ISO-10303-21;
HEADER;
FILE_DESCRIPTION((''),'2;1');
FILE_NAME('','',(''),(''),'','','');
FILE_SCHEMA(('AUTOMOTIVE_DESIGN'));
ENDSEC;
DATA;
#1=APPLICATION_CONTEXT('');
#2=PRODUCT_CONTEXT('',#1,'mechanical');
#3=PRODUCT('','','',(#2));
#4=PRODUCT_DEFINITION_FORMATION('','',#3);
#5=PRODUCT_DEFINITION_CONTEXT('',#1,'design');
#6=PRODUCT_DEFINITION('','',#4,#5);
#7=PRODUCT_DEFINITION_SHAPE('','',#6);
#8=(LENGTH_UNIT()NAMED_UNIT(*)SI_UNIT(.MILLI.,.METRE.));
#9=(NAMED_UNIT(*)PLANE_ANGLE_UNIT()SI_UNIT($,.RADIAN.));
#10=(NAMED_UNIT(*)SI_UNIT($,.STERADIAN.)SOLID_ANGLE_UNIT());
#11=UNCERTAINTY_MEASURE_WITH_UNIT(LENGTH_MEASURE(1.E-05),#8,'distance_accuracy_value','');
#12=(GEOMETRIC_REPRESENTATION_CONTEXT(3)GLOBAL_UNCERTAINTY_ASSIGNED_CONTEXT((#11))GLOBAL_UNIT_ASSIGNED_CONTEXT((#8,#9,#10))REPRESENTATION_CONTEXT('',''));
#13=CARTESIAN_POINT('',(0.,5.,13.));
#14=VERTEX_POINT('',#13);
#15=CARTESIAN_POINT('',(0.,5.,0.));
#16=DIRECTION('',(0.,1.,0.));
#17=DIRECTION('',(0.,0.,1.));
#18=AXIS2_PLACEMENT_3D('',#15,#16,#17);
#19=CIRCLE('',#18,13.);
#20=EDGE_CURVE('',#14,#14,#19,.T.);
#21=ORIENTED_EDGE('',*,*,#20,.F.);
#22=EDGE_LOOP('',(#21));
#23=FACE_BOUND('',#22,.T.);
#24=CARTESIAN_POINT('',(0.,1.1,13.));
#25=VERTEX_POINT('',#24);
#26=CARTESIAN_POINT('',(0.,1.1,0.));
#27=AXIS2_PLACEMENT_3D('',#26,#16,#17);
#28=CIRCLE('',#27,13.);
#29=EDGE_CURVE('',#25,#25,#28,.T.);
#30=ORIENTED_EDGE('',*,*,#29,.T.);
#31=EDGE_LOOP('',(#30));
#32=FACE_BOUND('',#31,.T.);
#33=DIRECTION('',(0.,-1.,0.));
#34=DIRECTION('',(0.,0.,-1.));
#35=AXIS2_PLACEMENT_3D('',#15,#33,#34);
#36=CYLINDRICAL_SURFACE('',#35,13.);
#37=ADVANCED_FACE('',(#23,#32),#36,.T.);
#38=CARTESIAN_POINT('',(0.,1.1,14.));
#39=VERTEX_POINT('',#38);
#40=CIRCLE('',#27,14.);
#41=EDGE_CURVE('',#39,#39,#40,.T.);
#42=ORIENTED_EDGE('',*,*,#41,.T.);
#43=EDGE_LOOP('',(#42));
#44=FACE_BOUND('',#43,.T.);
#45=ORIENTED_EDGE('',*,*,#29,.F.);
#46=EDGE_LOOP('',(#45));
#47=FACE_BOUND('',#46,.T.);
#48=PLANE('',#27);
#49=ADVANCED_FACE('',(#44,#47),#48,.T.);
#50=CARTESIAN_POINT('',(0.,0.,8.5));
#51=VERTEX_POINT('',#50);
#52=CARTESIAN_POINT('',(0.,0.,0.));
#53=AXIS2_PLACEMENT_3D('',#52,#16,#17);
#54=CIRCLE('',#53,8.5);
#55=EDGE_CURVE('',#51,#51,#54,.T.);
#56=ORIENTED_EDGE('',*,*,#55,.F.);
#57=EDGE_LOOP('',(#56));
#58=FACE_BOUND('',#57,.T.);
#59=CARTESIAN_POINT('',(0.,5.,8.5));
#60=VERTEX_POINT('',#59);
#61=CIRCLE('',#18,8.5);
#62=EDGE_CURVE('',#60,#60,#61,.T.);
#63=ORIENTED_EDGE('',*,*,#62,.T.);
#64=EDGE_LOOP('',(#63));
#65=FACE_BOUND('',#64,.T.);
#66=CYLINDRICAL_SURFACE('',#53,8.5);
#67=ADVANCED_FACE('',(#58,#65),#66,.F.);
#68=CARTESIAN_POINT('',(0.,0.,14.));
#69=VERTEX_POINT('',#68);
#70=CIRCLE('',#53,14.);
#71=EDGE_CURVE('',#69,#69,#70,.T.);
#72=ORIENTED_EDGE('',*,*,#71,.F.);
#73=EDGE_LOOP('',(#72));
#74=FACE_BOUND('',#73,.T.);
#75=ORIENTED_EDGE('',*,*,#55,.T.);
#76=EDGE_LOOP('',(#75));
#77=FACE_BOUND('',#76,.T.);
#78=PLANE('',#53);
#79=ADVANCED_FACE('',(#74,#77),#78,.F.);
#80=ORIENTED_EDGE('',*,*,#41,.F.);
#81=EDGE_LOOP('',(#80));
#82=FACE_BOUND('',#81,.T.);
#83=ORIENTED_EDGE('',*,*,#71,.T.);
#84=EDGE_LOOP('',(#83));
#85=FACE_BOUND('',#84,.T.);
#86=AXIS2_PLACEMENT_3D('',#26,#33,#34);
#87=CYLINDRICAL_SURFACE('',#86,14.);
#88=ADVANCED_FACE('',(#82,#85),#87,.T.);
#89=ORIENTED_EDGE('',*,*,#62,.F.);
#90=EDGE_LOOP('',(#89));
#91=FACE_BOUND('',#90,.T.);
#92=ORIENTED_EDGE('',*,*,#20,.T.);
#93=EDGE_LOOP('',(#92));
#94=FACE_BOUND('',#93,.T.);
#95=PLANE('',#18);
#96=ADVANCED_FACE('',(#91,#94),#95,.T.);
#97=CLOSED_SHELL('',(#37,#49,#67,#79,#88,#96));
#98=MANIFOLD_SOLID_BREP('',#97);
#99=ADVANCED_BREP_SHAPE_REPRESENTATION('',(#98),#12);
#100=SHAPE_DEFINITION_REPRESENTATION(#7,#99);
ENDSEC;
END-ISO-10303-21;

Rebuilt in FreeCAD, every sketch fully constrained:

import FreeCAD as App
import Part
import Sketcher
Q = App.Units.Quantity

doc = App.newDocument("Part")
params = doc.addObject("Spreadsheet::Sheet", "Params")
for row, (alias, value) in enumerate([
    ("sketch1_diameter", "28 mm"),
    ("pad1_length", "1.1 mm"),
    ("sketch2_diameter", "26 mm"),
    ("pad2_length", "3.9 mm"),
    ("sketch3_diameter", "17 mm"),
], start=1):
    params.set(f"A{row}", alias)
    params.set(f"B{row}", "=" + value)
    params.setAlias(f"B{row}", alias)

body = doc.addObject("PartDesign::Body", "Body")

# Sketch on XZ plane
sketch1 = body.newObject("Sketcher::SketchObject", "Sketch")
sketch1.AttachmentSupport = (doc.getObject("XZ_Plane"), [""])
sketch1.MapMode = "FlatFace"
sketch1.addGeometry(Part.Circle(App.Vector(0, 0, 0), App.Vector(0, 0, 1), 14), False)
sketch1.addConstraint([
    Sketcher.Constraint("Coincident", 0, 3, -1, 1),
    Sketcher.Constraint("Diameter", 0, Q("28 mm")),
])
sketch1.setExpression("Constraints[1]", "Params.sketch1_diameter")
pad1 = body.newObject("PartDesign::Pad", "Pad")
pad1.Profile = sketch1
pad1.setExpression("Length", "Params.pad1_length")
pad1.Reversed = True

# Sketch on XZ plane
sketch2 = body.newObject("Sketcher::SketchObject", "Sketch001")
sketch2.AttachmentSupport = (doc.getObject("XZ_Plane"), [""])
sketch2.MapMode = "FlatFace"
sketch2.AttachmentOffset = App.Placement(App.Vector(0, 0, -1.1), App.Rotation())
sketch2.addGeometry(Part.Circle(App.Vector(0, 0, 0), App.Vector(0, 0, 1), 13), False)
sketch2.addConstraint([
    Sketcher.Constraint("Coincident", 0, 3, -1, 1),
    Sketcher.Constraint("Diameter", 0, Q("26 mm")),
])
sketch2.setExpression("Constraints[1]", "Params.sketch2_diameter")
pad2 = body.newObject("PartDesign::Pad", "Pad001")
pad2.Profile = sketch2
pad2.setExpression("Length", "Params.pad2_length")
pad2.Reversed = True

# Sketch on XZ plane
sketch3 = body.newObject("Sketcher::SketchObject", "Sketch002")
sketch3.AttachmentSupport = (doc.getObject("XZ_Plane"), [""])
sketch3.MapMode = "FlatFace"
sketch3.AttachmentOffset = App.Placement(App.Vector(0, 0, -5), App.Rotation())
sketch3.addGeometry(Part.Circle(App.Vector(0, 0, 0), App.Vector(0, 0, 1), 8.5), False)
sketch3.addConstraint([
    Sketcher.Constraint("Coincident", 0, 3, -1, 1),
    Sketcher.Constraint("Diameter", 0, Q("17 mm")),
])
sketch3.setExpression("Constraints[1]", "Params.sketch3_diameter")
pocket1 = body.newObject("PartDesign::Pocket", "Pocket")
pocket1.Profile = sketch3
pocket1.Type = "ThroughAll"
pocket1.Reversed = True

doc.recompute()
